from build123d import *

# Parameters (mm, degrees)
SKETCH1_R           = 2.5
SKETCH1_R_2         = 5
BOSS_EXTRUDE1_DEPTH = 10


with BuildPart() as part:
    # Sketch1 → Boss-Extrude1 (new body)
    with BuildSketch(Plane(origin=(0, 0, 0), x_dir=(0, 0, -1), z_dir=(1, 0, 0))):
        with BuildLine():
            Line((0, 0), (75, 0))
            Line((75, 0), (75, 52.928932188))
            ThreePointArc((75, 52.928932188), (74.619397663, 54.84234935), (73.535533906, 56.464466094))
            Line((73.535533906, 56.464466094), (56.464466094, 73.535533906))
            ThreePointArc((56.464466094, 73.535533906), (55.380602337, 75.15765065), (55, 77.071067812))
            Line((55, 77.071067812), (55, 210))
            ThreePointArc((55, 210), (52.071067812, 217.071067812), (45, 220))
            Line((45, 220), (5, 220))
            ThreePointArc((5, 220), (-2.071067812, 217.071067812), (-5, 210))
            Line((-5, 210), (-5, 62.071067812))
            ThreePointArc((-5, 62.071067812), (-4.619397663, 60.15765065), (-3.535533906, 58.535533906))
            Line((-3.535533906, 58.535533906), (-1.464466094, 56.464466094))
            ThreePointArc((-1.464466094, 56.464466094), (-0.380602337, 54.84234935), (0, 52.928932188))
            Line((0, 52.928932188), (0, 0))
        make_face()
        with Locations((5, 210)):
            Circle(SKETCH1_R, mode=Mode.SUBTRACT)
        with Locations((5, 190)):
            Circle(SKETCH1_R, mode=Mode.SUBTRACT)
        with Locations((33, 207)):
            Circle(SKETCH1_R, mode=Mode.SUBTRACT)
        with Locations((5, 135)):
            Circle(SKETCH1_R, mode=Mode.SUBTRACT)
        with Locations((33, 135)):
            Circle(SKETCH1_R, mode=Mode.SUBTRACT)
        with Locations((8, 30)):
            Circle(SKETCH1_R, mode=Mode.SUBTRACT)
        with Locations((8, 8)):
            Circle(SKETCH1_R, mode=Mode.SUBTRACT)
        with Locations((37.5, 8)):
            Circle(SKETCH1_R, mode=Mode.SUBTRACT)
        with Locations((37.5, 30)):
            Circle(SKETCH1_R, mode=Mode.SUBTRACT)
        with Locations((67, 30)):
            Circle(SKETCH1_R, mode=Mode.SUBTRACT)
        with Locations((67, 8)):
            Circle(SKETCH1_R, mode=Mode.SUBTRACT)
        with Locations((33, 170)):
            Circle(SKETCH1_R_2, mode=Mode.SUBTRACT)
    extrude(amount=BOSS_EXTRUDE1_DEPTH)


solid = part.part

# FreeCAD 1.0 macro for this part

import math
import FreeCAD as App
import Part
import Sketcher

V = App.Vector
Q = App.Units.Quantity

doc = App.newDocument("Part")
body = doc.addObject("PartDesign::Body", "Body")

sketch1 = body.newObject("Sketcher::SketchObject", "Sketch")
sketch1.AttachmentSupport = (doc.getObject("YZ_Plane"), [""])
sketch1.MapMode = "FlatFace"
sketch1.addGeometry(Part.LineSegment(V(0, 0, 0), V(0, -75, 0)), False)
sketch1.addGeometry(Part.LineSegment(V(0, -75, 0), V(52.9, -75, 0)), False)
sketch1.addGeometry(Part.ArcOfCircle(Part.Circle(V(52.9, -70, 0), V(0, 0, 1), 5), math.radians(-90), math.radians(-45)), False)
sketch1.addGeometry(Part.LineSegment(V(56.5, -73.5, 0), V(73.5, -56.5, 0)), False)
sketch1.addGeometry(Part.ArcOfCircle(Part.Circle(V(77.1, -60, 0), V(0, 0, 1), 5), math.radians(90), math.radians(135)), False)
sketch1.addGeometry(Part.LineSegment(V(77.1, -55, 0), V(210, -55, 0)), False)
sketch1.addGeometry(Part.ArcOfCircle(Part.Circle(V(210, -45, 0), V(0, 0, 1), 10), math.radians(-90), math.radians(0)), False)
sketch1.addGeometry(Part.LineSegment(V(220, -45, 0), V(220, -5, 0)), False)
sketch1.addGeometry(Part.ArcOfCircle(Part.Circle(V(210, -5, 0), V(0, 0, 1), 10), math.radians(0), math.radians(90)), False)
sketch1.addGeometry(Part.LineSegment(V(210, 5, 0), V(62.1, 5, 0)), False)
sketch1.addGeometry(Part.ArcOfCircle(Part.Circle(V(62.1, 0, 0), V(0, 0, 1), 5), math.radians(90), math.radians(135)), False)
sketch1.addGeometry(Part.LineSegment(V(58.5, 3.5, 0), V(56.5, 1.5, 0)), False)
sketch1.addGeometry(Part.ArcOfCircle(Part.Circle(V(52.9, 5, 0), V(0, 0, 1), 5), math.radians(-90), math.radians(-45)), False)
sketch1.addGeometry(Part.LineSegment(V(52.9, 0, 0), V(0, 0, 0)), False)
sketch1.addGeometry(Part.Circle(V(8, -8, 0), V(0, 0, 1), 2.5), False)
sketch1.addGeometry(Part.Circle(V(30, -8, 0), V(0, 0, 1), 2.5), False)
sketch1.addGeometry(Part.Circle(V(8, -37.5, 0), V(0, 0, 1), 2.5), False)
sketch1.addGeometry(Part.Circle(V(30, -37.5, 0), V(0, 0, 1), 2.5), False)
sketch1.addGeometry(Part.Circle(V(8, -67, 0), V(0, 0, 1), 2.5), False)
sketch1.addGeometry(Part.Circle(V(30, -67, 0), V(0, 0, 1), 2.5), False)
sketch1.addGeometry(Part.Circle(V(135, -5, 0), V(0, 0, 1), 2.5), False)
sketch1.addGeometry(Part.Circle(V(135, -33, 0), V(0, 0, 1), 2.5), False)
sketch1.addGeometry(Part.Circle(V(190, -5, 0), V(0, 0, 1), 2.5), False)
sketch1.addGeometry(Part.Circle(V(210, -5, 0), V(0, 0, 1), 2.5), False)
sketch1.addGeometry(Part.Circle(V(170, -33, 0), V(0, 0, 1), 5), False)
sketch1.addGeometry(Part.Circle(V(207, -33, 0), V(0, 0, 1), 2.5), False)
sketch1.addConstraint(Sketcher.Constraint("Coincident", 0, 2, 1, 1))
sketch1.addConstraint(Sketcher.Constraint("Tangent", 1, 2, 2, 1))
sketch1.addConstraint(Sketcher.Constraint("Tangent", 2, 2, 3, 1))
sketch1.addConstraint(Sketcher.Constraint("Tangent", 3, 2, 4, 2))
sketch1.addConstraint(Sketcher.Constraint("Tangent", 4, 1, 5, 1))
sketch1.addConstraint(Sketcher.Constraint("Tangent", 5, 2, 6, 1))
sketch1.addConstraint(Sketcher.Constraint("Tangent", 6, 2, 7, 1))
sketch1.addConstraint(Sketcher.Constraint("Tangent", 7, 2, 8, 1))
sketch1.addConstraint(Sketcher.Constraint("Tangent", 8, 2, 9, 1))
sketch1.addConstraint(Sketcher.Constraint("Tangent", 9, 2, 10, 1))
sketch1.addConstraint(Sketcher.Constraint("Tangent", 10, 2, 11, 1))
sketch1.addConstraint(Sketcher.Constraint("Tangent", 11, 2, 12, 2))
sketch1.addConstraint(Sketcher.Constraint("Tangent", 12, 1, 13, 1))
sketch1.addConstraint(Sketcher.Constraint("Coincident", 13, 2, 0, 1))
sketch1.addConstraint(Sketcher.Constraint("Vertical", 0))
sketch1.addConstraint(Sketcher.Constraint("Horizontal", 1))
sketch1.addConstraint(Sketcher.Constraint("Horizontal", 5))
sketch1.addConstraint(Sketcher.Constraint("Vertical", 7))
sketch1.addConstraint(Sketcher.Constraint("Horizontal", 9))
sketch1.addConstraint(Sketcher.Constraint("Horizontal", 13))
sketch1.addConstraint(Sketcher.Constraint("Coincident", 13, 2, -1, 1))
sketch1.addConstraint(Sketcher.Constraint("Coincident", 23, 3, 8, 3))
sketch1.addConstraint(Sketcher.Constraint("Equal", 2, 4))
sketch1.addConstraint(Sketcher.Constraint("Equal", 6, 8))
sketch1.addConstraint(Sketcher.Constraint("Equal", 4, 10))
sketch1.addConstraint(Sketcher.Constraint("Equal", 10, 12))
sketch1.addConstraint(Sketcher.Constraint("Equal", 14, 15))
sketch1.addConstraint(Sketcher.Constraint("Equal", 15, 16))
sketch1.addConstraint(Sketcher.Constraint("Equal", 16, 17))
sketch1.addConstraint(Sketcher.Constraint("Equal", 17, 18))
sketch1.addConstraint(Sketcher.Constraint("Equal", 18, 19))
sketch1.addConstraint(Sketcher.Constraint("Equal", 19, 20))
sketch1.addConstraint(Sketcher.Constraint("Equal", 20, 21))
sketch1.addConstraint(Sketcher.Constraint("Equal", 21, 22))
sketch1.addConstraint(Sketcher.Constraint("Equal", 22, 23))
sketch1.addConstraint(Sketcher.Constraint("Equal", 12, 24))
sketch1.addConstraint(Sketcher.Constraint("Equal", 23, 25))
sketch1.addConstraint(Sketcher.Constraint("PointOnObject", 10, 3, -1))
sketch1.addConstraint(Sketcher.Constraint("Parallel", 3, 11))
sketch1.addConstraint(Sketcher.Constraint("Horizontal", 14, 3, 15, 3))
sketch1.addConstraint(Sketcher.Constraint("Horizontal", 16, 3, 17, 3))
sketch1.addConstraint(Sketcher.Constraint("Horizontal", 18, 3, 19, 3))
sketch1.addConstraint(Sketcher.Constraint("Horizontal", 8, 3, 20, 3))
sketch1.addConstraint(Sketcher.Constraint("Horizontal", 20, 3, 22, 3))
sketch1.addConstraint(Sketcher.Constraint("Horizontal", 21, 3, 24, 3))
sketch1.addConstraint(Sketcher.Constraint("Horizontal", 24, 3, 25, 3))
sketch1.addConstraint(Sketcher.Constraint("Vertical", 2, 3, 12, 3))
sketch1.addConstraint(Sketcher.Constraint("Vertical", 14, 3, 16, 3))
sketch1.addConstraint(Sketcher.Constraint("Vertical", 15, 3, 17, 3))
sketch1.addConstraint(Sketcher.Constraint("Vertical", 16, 3, 18, 3))
sketch1.addConstraint(Sketcher.Constraint("Vertical", 17, 3, 19, 3))
sketch1.addConstraint(Sketcher.Constraint("Vertical", 20, 3, 21, 3))
sketch1.addConstraint(Sketcher.Constraint("Diameter", 14, Q("5 mm")))
sketch1.addConstraint(Sketcher.Constraint("Diameter", 24, Q("10 mm")))
sketch1.addConstraint(Sketcher.Constraint("Radius", 6, Q("10 mm")))
sketch1.addConstraint(Sketcher.Constraint("DistanceY", 0, 2, 0, 1, Q("75 mm")))
sketch1.addConstraint(Sketcher.Constraint("DistanceY", 7, 1, 7, 2, Q("40 mm")))
sketch1.addConstraint(Sketcher.Constraint("Angle", 3, Q("45 deg")))
sketch1.addConstraint(Sketcher.Constraint("DistanceX", -1, 1, 6, 3, Q("210 mm")))
sketch1.addConstraint(Sketcher.Constraint("DistanceX", -1, 1, 14, 3, Q("8 mm")))
sketch1.addConstraint(Sketcher.Constraint("DistanceY", 14, 3, -1, 1, Q("8 mm")))
sketch1.addConstraint(Sketcher.Constraint("DistanceX", -1, 1, 15, 3, Q("30 mm")))
sketch1.addConstraint(Sketcher.Constraint("DistanceY", 18, 3, -1, 1, Q("67 mm")))
sketch1.addConstraint(Sketcher.Constraint("DistanceX", -1, 1, 20, 3, Q("135 mm")))
sketch1.addConstraint(Sketcher.Constraint("DistanceY", 21, 3, -1, 1, Q("33 mm")))
sketch1.addConstraint(Sketcher.Constraint("DistanceX", -1, 1, 22, 3, Q("190 mm")))
sketch1.addConstraint(Sketcher.Constraint("DistanceX", -1, 1, 24, 3, Q("170 mm")))
sketch1.addConstraint(Sketcher.Constraint("DistanceX", -1, 1, 25, 3, Q("207 mm")))
sketch1.addConstraint(Sketcher.Constraint("DistanceY", 16, 3, -1, 1, Q("37.5 mm")))
sketch1.addConstraint(Sketcher.Constraint("DistanceX", 1, 1, 1, 2, Q("52.928932 mm")))
pad1 = body.newObject("PartDesign::Pad", "Pad")
pad1.Profile = sketch1
pad1.Length = 10

doc.recompute()
